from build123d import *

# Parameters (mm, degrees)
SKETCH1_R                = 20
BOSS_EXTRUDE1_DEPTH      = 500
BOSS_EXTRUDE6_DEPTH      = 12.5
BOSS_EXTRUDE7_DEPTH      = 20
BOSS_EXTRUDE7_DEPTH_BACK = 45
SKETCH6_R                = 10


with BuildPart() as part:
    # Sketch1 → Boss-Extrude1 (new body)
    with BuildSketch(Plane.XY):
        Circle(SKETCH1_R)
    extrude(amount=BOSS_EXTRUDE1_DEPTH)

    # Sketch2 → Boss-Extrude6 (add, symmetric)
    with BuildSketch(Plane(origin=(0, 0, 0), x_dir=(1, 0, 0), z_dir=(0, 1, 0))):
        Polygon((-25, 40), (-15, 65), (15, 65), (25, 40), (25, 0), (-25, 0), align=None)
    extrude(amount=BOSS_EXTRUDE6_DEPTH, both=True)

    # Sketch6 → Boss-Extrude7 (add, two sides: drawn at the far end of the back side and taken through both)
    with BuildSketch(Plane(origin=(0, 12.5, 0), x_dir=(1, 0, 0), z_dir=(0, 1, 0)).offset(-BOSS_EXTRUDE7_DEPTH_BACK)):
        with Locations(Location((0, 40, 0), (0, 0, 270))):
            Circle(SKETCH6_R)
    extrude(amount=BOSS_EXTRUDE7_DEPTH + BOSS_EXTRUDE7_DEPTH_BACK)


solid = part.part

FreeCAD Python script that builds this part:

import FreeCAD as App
import Part
import Sketcher
Q = App.Units.Quantity

doc = App.newDocument("Part")
body = doc.addObject("PartDesign::Body", "Body")

sketch1 = body.newObject("Sketcher::SketchObject", "Sketch")
sketch1.AttachmentSupport = (doc.getObject("XY_Plane"), [""])
sketch1.MapMode = "FlatFace"
sketch1.addGeometry(Part.Circle(App.Vector(0, 0, 0), App.Vector(0, 0, 1), 20), False)
sketch1.addConstraint([
    Sketcher.Constraint("Coincident", 0, 3, -1, 1),
    Sketcher.Constraint("Diameter", 0, Q("40 mm")),
])
pad1 = body.newObject("PartDesign::Pad", "Pad")
pad1.Profile = sketch1
pad1.Length = 500

sketch2 = body.newObject("Sketcher::SketchObject", "Sketch001")
sketch2.AttachmentSupport = (doc.getObject("XZ_Plane"), [""])
sketch2.MapMode = "FlatFace"
sketch2.addGeometry([
    Part.LineSegment(App.Vector(-15, -65, 0), App.Vector(-25, -40, 0)),
    Part.LineSegment(App.Vector(-25, -40, 0), App.Vector(-25, 0, 0)),
    Part.LineSegment(App.Vector(-25, 0, 0), App.Vector(25, 0, 0)),
    Part.LineSegment(App.Vector(25, 0, 0), App.Vector(25, -40, 0)),
    Part.LineSegment(App.Vector(25, -40, 0), App.Vector(15, -65, 0)),
    Part.LineSegment(App.Vector(15, -65, 0), App.Vector(-15, -65, 0)),
], False)
sketch2.addConstraint([
    Sketcher.Constraint("Coincident", 0, 2, 1, 1),
    Sketcher.Constraint("Coincident", 1, 2, 2, 1),
    Sketcher.Constraint("Coincident", 2, 2, 3, 1),
    Sketcher.Constraint("Coincident", 3, 2, 4, 1),
    Sketcher.Constraint("Coincident", 4, 2, 5, 1),
    Sketcher.Constraint("Coincident", 5, 2, 0, 1),
    Sketcher.Constraint("Vertical", 1),
    Sketcher.Constraint("Horizontal", 2),
    Sketcher.Constraint("Vertical", 3),
    Sketcher.Constraint("Horizontal", 5),
    Sketcher.Constraint("Symmetric", 1, 2, 2, 2, -1, 1),
    Sketcher.Constraint("Horizontal", 0, 2, 3, 2),
    Sketcher.Constraint("Equal", 0, 4),
    Sketcher.Constraint("DistanceX", 2, 1, 2, 2, Q("50 mm")),
    Sketcher.Constraint("DistanceX", 5, 2, 5, 1, Q("30 mm")),
    Sketcher.Constraint("DistanceY", 1, 1, 1, 2, Q("40 mm")),
    Sketcher.Constraint("DistanceY", 4, 2, -1, 1, Q("65 mm")),
])
pad2 = body.newObject("PartDesign::Pad", "Pad001")
pad2.Profile = sketch2
pad2.Length = 25
pad2.Midplane = True

sketch3 = body.newObject("Sketcher::SketchObject", "Sketch002")
sketch3.AttachmentSupport = (doc.getObject("XZ_Plane"), [""])
sketch3.MapMode = "FlatFace"
sketch3.AttachmentOffset = App.Placement(App.Vector(0, 0, -12.5), App.Rotation())
sketch3.addGeometry(Part.Circle(App.Vector(0, -40, 0), App.Vector(0, 0, 1), 10), False)
sketch3.addConstraint([
    Sketcher.Constraint("PointOnObject", 0, 3, -2),
    Sketcher.Constraint("Diameter", 0, Q("20 mm")),
    Sketcher.Constraint("DistanceY", 0, 3, -1, 1, Q("40 mm")),
])
pad3 = body.newObject("PartDesign::Pad", "Pad002")
pad3.Profile = sketch3
pad3.Type = "TwoLengths"
pad3.Length = 20
pad3.Length2 = 45
pad3.Reversed = True

doc.recompute()
